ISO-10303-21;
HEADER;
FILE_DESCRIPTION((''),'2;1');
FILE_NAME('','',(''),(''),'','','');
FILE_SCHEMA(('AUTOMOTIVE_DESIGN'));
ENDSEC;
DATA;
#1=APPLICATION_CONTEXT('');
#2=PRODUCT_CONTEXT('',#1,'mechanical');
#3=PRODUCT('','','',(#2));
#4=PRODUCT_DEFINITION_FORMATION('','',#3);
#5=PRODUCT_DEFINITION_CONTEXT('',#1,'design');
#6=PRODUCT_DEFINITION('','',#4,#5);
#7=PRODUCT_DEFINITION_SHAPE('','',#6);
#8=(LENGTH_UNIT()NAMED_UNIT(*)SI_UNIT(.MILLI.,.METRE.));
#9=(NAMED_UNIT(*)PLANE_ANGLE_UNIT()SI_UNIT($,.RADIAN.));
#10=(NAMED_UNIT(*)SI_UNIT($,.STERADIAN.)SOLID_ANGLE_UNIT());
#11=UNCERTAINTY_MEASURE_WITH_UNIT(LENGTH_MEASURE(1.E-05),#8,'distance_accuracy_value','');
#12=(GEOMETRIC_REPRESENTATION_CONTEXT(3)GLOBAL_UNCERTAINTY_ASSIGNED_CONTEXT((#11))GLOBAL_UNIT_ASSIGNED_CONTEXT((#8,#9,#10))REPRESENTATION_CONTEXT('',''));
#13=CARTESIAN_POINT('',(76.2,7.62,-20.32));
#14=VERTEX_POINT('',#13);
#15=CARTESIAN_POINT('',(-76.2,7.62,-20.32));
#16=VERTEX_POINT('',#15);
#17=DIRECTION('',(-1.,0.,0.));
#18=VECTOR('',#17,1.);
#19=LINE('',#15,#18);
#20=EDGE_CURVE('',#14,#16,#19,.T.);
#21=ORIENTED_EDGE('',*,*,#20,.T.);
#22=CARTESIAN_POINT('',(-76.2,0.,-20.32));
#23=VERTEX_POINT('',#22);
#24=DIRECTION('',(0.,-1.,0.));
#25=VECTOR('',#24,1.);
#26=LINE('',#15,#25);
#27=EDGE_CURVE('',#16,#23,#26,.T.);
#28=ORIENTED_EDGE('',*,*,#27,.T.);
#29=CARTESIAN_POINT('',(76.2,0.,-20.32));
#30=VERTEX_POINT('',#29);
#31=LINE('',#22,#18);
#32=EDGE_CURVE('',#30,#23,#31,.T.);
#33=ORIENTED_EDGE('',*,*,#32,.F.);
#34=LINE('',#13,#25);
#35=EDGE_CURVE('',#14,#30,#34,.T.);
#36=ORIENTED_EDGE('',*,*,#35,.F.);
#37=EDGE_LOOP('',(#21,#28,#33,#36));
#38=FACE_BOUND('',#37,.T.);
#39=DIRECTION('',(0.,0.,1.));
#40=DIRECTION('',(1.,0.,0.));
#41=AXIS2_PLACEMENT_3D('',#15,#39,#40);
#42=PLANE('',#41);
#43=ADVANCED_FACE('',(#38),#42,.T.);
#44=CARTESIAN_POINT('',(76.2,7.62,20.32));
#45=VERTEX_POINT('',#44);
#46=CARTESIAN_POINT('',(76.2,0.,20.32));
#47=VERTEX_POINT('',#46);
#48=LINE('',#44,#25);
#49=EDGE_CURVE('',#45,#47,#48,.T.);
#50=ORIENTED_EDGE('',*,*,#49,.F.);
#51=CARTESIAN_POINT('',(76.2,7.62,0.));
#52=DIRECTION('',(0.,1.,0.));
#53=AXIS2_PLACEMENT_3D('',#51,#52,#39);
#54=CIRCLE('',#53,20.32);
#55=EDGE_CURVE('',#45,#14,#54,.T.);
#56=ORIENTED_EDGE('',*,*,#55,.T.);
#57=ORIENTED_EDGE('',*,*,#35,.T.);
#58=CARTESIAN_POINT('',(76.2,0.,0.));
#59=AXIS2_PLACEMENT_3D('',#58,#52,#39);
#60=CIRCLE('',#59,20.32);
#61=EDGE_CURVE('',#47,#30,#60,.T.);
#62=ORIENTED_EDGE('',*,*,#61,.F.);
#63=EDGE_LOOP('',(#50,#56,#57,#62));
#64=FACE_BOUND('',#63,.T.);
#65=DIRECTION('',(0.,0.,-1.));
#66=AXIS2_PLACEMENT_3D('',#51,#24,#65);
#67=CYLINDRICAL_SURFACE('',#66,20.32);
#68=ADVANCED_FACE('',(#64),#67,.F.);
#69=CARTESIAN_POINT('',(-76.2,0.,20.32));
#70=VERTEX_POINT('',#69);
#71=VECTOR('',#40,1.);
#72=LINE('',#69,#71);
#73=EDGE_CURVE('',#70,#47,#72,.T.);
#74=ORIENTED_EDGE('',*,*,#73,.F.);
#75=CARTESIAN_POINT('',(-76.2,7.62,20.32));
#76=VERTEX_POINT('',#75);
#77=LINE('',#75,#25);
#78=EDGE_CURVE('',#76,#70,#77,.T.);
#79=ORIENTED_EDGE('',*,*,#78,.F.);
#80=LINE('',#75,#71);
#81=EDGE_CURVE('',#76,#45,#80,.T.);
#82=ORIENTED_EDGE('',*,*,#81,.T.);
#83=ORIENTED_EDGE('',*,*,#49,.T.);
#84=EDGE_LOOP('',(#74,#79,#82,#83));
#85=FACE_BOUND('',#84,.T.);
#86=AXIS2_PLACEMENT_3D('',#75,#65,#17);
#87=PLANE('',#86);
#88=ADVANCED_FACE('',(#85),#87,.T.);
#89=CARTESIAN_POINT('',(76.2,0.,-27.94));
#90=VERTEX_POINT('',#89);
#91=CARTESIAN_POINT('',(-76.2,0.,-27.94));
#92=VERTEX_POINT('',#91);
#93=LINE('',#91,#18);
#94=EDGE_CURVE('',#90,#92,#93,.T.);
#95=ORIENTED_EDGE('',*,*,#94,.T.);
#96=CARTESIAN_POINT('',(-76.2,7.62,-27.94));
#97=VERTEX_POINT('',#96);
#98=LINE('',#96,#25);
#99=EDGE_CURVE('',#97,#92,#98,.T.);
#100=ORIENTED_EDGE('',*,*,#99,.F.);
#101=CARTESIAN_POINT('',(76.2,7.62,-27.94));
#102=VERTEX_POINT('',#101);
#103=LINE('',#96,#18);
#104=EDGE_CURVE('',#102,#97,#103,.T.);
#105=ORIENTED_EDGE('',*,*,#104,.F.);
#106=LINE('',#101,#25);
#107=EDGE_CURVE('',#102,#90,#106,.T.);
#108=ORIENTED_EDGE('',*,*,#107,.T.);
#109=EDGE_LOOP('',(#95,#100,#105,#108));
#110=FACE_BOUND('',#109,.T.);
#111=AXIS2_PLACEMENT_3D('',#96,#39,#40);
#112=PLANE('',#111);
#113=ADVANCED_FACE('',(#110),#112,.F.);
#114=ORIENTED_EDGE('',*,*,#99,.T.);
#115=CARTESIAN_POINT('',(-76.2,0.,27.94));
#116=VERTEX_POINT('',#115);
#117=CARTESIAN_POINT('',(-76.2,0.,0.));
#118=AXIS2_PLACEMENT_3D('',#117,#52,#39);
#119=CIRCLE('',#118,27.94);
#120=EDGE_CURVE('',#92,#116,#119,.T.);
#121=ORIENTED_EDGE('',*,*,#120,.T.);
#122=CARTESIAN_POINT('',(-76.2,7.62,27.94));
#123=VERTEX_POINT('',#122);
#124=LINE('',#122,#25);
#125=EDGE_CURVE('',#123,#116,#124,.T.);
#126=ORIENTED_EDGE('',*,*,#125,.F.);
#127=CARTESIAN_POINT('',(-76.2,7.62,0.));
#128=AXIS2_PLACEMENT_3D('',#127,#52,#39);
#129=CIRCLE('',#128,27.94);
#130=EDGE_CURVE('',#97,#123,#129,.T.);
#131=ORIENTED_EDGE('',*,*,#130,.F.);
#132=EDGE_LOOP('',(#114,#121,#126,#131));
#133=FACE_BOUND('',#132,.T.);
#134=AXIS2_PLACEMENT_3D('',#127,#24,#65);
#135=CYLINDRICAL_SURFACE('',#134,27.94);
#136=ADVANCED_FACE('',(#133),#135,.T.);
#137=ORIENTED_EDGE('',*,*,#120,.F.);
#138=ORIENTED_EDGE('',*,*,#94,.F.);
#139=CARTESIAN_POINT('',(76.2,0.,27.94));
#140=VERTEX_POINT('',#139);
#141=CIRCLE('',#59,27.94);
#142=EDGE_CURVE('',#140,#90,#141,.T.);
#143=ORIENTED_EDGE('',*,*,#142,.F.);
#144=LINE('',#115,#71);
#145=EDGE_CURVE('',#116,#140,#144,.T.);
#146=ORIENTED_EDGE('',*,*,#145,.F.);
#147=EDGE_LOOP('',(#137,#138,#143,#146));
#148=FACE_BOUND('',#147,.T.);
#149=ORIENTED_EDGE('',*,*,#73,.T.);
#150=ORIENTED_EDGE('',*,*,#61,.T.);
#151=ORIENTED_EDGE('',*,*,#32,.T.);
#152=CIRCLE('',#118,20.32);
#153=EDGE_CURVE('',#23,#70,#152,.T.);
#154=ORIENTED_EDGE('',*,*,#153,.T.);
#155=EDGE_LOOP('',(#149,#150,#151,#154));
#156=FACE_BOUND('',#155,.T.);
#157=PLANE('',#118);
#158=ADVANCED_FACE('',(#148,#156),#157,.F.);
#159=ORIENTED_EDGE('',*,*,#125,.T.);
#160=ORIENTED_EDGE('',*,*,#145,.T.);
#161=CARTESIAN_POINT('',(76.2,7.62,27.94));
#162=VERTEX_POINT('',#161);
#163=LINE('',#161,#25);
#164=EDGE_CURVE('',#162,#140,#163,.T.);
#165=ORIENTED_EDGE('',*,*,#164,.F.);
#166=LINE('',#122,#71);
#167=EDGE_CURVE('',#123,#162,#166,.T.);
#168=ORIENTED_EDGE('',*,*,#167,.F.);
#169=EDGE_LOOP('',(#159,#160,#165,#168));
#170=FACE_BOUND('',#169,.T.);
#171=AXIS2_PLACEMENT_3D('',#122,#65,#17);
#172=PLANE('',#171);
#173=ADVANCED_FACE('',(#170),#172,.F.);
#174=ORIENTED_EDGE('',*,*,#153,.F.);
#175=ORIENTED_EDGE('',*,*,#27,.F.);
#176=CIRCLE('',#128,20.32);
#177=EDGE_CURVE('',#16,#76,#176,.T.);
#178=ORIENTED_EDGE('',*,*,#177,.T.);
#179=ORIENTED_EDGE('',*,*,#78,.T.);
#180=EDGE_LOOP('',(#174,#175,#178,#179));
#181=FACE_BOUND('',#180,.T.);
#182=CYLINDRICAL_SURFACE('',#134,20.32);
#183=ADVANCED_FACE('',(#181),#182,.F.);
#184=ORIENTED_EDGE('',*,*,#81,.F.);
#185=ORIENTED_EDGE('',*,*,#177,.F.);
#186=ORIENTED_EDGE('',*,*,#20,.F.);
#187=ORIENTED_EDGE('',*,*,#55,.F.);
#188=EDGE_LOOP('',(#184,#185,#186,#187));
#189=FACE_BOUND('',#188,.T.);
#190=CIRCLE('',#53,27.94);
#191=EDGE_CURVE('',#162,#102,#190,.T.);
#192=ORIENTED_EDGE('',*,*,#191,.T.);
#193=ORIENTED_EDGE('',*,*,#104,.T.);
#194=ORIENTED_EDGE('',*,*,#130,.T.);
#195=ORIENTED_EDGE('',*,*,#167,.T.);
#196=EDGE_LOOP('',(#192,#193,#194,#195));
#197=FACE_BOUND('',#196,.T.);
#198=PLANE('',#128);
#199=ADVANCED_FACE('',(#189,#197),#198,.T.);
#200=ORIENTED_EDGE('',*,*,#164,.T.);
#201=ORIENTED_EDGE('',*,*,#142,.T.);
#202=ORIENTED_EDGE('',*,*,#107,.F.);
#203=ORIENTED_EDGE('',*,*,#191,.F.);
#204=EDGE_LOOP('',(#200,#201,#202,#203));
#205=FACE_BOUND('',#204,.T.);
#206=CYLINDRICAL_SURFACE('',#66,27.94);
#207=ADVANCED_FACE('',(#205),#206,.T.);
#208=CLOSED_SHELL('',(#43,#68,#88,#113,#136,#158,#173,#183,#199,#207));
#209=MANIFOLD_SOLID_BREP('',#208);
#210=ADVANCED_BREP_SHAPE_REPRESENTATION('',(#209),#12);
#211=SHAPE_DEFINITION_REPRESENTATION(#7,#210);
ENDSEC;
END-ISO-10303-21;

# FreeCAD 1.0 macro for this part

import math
import FreeCAD as App
import Part
import Sketcher

V = App.Vector
Q = App.Units.Quantity

doc = App.newDocument("Part")
body = doc.addObject("PartDesign::Body", "Body")

sketch1 = body.newObject("Sketcher::SketchObject", "Sketch")
sketch1.AttachmentSupport = (doc.getObject("XZ_Plane"), [""])
sketch1.MapMode = "FlatFace"
sketch1.addGeometry(Part.LineSegment(V(76, -28, 0), V(-76, -28, 0)), False)
sketch1.addGeometry(Part.ArcOfCircle(Part.Circle(V(-76, 0, 0), V(0, 0, 1), 28), math.radians(90), math.radians(270)), False)
sketch1.addGeometry(Part.LineSegment(V(-76, 28, 0), V(76, 28, 0)), False)
sketch1.addGeometry(Part.ArcOfCircle(Part.Circle(V(76, 0, 0), V(0, 0, 1), 28), math.radians(-90), math.radians(90)), False)
sketch1.addGeometry(Part.LineSegment(V(-76, -20, 0), V(76, -20, 0)), False)
sketch1.addGeometry(Part.ArcOfCircle(Part.Circle(V(76, 0, 0), V(0, 0, 1), 20), math.radians(-90), math.radians(90)), False)
sketch1.addGeometry(Part.LineSegment(V(76, 20, 0), V(-76, 20, 0)), False)
sketch1.addGeometry(Part.ArcOfCircle(Part.Circle(V(-76, 0, 0), V(0, 0, 1), 20), math.radians(90), math.radians(270)), False)
sketch1.addConstraint(Sketcher.Constraint("Tangent", 0, 2, 1, 2))
sketch1.addConstraint(Sketcher.Constraint("Tangent", 1, 1, 2, 1))
sketch1.addConstraint(Sketcher.Constraint("Tangent", 2, 2, 3, 2))
sketch1.addConstraint(Sketcher.Constraint("Tangent", 3, 1, 0, 1))
sketch1.addConstraint(Sketcher.Constraint("Tangent", 4, 2, 5, 1))
sketch1.addConstraint(Sketcher.Constraint("Tangent", 5, 2, 6, 1))
sketch1.addConstraint(Sketcher.Constraint("Tangent", 6, 2, 7, 1))
sketch1.addConstraint(Sketcher.Constraint("Tangent", 7, 2, 4, 1))
sketch1.addConstraint(Sketcher.Constraint("Horizontal", 0))
sketch1.addConstraint(Sketcher.Constraint("Horizontal", 2))
sketch1.addConstraint(Sketcher.Constraint("Horizontal", 4))
sketch1.addConstraint(Sketcher.Constraint("Horizontal", 6))
sketch1.addConstraint(Sketcher.Constraint("Coincident", 5, 3, 3, 3))
sketch1.addConstraint(Sketcher.Constraint("Symmetric", 1, 3, 3, 3, -1, 1))
sketch1.addConstraint(Sketcher.Constraint("Vertical", 7, 3, 0, 2))
sketch1.addConstraint(Sketcher.Constraint("Radius", 1, Q("1.1 in")))
sketch1.addConstraint(Sketcher.Constraint("Radius", 5, Q("0.8 in")))
sketch1.addConstraint(Sketcher.Constraint("DistanceX", 0, 2, 0, 1, Q("6 in")))
pad1 = body.newObject("PartDesign::Pad", "Pad")
pad1.Profile = sketch1
pad1.Length = Q("0.3 in")
pad1.Reversed = True

doc.recompute()
